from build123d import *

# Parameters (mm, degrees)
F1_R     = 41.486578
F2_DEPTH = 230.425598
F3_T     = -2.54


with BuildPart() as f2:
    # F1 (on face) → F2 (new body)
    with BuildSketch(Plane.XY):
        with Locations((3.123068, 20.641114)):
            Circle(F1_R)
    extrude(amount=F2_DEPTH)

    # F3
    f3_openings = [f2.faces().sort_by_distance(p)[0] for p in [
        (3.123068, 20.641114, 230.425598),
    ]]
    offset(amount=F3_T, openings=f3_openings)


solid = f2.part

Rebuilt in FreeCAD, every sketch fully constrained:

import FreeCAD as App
import Part
import Sketcher
from FreeCAD import Vector
Q = App.Units.Quantity


def faces_at(feature, points):
    """Names of the faces that lie closest to the given points."""
    faces = feature.Shape.Faces
    near = lambda p: min(range(len(faces)), key=lambda i: faces[i].distToShape(Part.Vertex(*p))[0])
    return sorted({f"Face{near(p) + 1}" for p in points})

doc = App.newDocument("Part")
body = doc.addObject("PartDesign::Body", "Body")

sketch1 = body.newObject("Sketcher::SketchObject", "Sketch")
sketch1.AttachmentSupport = (doc.getObject("XY_Plane"), [""])
sketch1.MapMode = "FlatFace"
sketch1.addGeometry(Part.Circle(Vector(3, 21, 0), Vector(0, 0, 1), 41), False)
sketch1.addConstraint(Sketcher.Constraint("Diameter", 0, Q("82.973156 mm")))
sketch1.addConstraint(Sketcher.Constraint("DistanceX", -1, 1, 0, 3, Q("3.123068 mm")))
sketch1.addConstraint(Sketcher.Constraint("DistanceY", -1, 1, 0, 3, Q("20.641114 mm")))
pad1 = body.newObject("PartDesign::Pad", "Pad")
pad1.Profile = sketch1
pad1.Length = 230.425598
doc.recompute()

thickness = body.newObject("PartDesign::Thickness", "Thickness")
thickness.Base = (pad1, faces_at(pad1, [(3.123, 20.641, 230.426)]))
thickness.Value = Q("0.1 in")
thickness.Reversed = True
thickness.Join = "Arc"

doc.recompute()
